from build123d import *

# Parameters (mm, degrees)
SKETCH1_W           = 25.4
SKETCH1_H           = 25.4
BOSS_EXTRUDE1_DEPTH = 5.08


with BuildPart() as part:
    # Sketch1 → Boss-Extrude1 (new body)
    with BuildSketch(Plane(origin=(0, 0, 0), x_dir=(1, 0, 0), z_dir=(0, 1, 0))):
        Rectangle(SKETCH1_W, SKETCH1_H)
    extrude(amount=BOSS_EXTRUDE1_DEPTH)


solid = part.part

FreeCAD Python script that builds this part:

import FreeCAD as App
import Part
import Sketcher

V = App.Vector
Q = App.Units.Quantity


def add_polygon(sketch, points):
    """Adds a closed chain of lines whose ends are joined by coincident constraints."""
    first, n = sketch.GeometryCount, len(points)
    for a, b in zip(points, points[1:] + points[:1]):
        sketch.addGeometry(Part.LineSegment(App.Vector(*a, 0), App.Vector(*b, 0)), False)
    for i in range(n):
        sketch.addConstraint(Sketcher.Constraint("Coincident", first + i, 2, first + (i + 1) % n, 1))

doc = App.newDocument("Part")
body = doc.addObject("PartDesign::Body", "Body")

# Sketch on XZ plane
sketch1 = body.newObject("Sketcher::SketchObject", "Sketch")
sketch1.AttachmentSupport = (doc.getObject("XZ_Plane"), [""])
sketch1.MapMode = "FlatFace"
add_polygon(sketch1, [(-12.7, -12.7), (-12.7, 12.7), (12.7, 12.7), (12.7, -12.7)])  # lines 0-3
sketch1.addConstraint([
    Sketcher.Constraint("Vertical", 0),
    Sketcher.Constraint("Horizontal", 1),
    Sketcher.Constraint("Vertical", 2),
    Sketcher.Constraint("Horizontal", 3),
    Sketcher.Constraint("Symmetric", 0, 2, 2, 2, -1, 1),
    Sketcher.Constraint("Equal", 3, 0),
    Sketcher.Constraint("DistanceX", 1, 1, 1, 2, Q("1 in")),
])
pad1 = body.newObject("PartDesign::Pad", "Pad")
pad1.Profile = sketch1
pad1.Length = Q("0.2 in")
pad1.Reversed = True

doc.recompute()
